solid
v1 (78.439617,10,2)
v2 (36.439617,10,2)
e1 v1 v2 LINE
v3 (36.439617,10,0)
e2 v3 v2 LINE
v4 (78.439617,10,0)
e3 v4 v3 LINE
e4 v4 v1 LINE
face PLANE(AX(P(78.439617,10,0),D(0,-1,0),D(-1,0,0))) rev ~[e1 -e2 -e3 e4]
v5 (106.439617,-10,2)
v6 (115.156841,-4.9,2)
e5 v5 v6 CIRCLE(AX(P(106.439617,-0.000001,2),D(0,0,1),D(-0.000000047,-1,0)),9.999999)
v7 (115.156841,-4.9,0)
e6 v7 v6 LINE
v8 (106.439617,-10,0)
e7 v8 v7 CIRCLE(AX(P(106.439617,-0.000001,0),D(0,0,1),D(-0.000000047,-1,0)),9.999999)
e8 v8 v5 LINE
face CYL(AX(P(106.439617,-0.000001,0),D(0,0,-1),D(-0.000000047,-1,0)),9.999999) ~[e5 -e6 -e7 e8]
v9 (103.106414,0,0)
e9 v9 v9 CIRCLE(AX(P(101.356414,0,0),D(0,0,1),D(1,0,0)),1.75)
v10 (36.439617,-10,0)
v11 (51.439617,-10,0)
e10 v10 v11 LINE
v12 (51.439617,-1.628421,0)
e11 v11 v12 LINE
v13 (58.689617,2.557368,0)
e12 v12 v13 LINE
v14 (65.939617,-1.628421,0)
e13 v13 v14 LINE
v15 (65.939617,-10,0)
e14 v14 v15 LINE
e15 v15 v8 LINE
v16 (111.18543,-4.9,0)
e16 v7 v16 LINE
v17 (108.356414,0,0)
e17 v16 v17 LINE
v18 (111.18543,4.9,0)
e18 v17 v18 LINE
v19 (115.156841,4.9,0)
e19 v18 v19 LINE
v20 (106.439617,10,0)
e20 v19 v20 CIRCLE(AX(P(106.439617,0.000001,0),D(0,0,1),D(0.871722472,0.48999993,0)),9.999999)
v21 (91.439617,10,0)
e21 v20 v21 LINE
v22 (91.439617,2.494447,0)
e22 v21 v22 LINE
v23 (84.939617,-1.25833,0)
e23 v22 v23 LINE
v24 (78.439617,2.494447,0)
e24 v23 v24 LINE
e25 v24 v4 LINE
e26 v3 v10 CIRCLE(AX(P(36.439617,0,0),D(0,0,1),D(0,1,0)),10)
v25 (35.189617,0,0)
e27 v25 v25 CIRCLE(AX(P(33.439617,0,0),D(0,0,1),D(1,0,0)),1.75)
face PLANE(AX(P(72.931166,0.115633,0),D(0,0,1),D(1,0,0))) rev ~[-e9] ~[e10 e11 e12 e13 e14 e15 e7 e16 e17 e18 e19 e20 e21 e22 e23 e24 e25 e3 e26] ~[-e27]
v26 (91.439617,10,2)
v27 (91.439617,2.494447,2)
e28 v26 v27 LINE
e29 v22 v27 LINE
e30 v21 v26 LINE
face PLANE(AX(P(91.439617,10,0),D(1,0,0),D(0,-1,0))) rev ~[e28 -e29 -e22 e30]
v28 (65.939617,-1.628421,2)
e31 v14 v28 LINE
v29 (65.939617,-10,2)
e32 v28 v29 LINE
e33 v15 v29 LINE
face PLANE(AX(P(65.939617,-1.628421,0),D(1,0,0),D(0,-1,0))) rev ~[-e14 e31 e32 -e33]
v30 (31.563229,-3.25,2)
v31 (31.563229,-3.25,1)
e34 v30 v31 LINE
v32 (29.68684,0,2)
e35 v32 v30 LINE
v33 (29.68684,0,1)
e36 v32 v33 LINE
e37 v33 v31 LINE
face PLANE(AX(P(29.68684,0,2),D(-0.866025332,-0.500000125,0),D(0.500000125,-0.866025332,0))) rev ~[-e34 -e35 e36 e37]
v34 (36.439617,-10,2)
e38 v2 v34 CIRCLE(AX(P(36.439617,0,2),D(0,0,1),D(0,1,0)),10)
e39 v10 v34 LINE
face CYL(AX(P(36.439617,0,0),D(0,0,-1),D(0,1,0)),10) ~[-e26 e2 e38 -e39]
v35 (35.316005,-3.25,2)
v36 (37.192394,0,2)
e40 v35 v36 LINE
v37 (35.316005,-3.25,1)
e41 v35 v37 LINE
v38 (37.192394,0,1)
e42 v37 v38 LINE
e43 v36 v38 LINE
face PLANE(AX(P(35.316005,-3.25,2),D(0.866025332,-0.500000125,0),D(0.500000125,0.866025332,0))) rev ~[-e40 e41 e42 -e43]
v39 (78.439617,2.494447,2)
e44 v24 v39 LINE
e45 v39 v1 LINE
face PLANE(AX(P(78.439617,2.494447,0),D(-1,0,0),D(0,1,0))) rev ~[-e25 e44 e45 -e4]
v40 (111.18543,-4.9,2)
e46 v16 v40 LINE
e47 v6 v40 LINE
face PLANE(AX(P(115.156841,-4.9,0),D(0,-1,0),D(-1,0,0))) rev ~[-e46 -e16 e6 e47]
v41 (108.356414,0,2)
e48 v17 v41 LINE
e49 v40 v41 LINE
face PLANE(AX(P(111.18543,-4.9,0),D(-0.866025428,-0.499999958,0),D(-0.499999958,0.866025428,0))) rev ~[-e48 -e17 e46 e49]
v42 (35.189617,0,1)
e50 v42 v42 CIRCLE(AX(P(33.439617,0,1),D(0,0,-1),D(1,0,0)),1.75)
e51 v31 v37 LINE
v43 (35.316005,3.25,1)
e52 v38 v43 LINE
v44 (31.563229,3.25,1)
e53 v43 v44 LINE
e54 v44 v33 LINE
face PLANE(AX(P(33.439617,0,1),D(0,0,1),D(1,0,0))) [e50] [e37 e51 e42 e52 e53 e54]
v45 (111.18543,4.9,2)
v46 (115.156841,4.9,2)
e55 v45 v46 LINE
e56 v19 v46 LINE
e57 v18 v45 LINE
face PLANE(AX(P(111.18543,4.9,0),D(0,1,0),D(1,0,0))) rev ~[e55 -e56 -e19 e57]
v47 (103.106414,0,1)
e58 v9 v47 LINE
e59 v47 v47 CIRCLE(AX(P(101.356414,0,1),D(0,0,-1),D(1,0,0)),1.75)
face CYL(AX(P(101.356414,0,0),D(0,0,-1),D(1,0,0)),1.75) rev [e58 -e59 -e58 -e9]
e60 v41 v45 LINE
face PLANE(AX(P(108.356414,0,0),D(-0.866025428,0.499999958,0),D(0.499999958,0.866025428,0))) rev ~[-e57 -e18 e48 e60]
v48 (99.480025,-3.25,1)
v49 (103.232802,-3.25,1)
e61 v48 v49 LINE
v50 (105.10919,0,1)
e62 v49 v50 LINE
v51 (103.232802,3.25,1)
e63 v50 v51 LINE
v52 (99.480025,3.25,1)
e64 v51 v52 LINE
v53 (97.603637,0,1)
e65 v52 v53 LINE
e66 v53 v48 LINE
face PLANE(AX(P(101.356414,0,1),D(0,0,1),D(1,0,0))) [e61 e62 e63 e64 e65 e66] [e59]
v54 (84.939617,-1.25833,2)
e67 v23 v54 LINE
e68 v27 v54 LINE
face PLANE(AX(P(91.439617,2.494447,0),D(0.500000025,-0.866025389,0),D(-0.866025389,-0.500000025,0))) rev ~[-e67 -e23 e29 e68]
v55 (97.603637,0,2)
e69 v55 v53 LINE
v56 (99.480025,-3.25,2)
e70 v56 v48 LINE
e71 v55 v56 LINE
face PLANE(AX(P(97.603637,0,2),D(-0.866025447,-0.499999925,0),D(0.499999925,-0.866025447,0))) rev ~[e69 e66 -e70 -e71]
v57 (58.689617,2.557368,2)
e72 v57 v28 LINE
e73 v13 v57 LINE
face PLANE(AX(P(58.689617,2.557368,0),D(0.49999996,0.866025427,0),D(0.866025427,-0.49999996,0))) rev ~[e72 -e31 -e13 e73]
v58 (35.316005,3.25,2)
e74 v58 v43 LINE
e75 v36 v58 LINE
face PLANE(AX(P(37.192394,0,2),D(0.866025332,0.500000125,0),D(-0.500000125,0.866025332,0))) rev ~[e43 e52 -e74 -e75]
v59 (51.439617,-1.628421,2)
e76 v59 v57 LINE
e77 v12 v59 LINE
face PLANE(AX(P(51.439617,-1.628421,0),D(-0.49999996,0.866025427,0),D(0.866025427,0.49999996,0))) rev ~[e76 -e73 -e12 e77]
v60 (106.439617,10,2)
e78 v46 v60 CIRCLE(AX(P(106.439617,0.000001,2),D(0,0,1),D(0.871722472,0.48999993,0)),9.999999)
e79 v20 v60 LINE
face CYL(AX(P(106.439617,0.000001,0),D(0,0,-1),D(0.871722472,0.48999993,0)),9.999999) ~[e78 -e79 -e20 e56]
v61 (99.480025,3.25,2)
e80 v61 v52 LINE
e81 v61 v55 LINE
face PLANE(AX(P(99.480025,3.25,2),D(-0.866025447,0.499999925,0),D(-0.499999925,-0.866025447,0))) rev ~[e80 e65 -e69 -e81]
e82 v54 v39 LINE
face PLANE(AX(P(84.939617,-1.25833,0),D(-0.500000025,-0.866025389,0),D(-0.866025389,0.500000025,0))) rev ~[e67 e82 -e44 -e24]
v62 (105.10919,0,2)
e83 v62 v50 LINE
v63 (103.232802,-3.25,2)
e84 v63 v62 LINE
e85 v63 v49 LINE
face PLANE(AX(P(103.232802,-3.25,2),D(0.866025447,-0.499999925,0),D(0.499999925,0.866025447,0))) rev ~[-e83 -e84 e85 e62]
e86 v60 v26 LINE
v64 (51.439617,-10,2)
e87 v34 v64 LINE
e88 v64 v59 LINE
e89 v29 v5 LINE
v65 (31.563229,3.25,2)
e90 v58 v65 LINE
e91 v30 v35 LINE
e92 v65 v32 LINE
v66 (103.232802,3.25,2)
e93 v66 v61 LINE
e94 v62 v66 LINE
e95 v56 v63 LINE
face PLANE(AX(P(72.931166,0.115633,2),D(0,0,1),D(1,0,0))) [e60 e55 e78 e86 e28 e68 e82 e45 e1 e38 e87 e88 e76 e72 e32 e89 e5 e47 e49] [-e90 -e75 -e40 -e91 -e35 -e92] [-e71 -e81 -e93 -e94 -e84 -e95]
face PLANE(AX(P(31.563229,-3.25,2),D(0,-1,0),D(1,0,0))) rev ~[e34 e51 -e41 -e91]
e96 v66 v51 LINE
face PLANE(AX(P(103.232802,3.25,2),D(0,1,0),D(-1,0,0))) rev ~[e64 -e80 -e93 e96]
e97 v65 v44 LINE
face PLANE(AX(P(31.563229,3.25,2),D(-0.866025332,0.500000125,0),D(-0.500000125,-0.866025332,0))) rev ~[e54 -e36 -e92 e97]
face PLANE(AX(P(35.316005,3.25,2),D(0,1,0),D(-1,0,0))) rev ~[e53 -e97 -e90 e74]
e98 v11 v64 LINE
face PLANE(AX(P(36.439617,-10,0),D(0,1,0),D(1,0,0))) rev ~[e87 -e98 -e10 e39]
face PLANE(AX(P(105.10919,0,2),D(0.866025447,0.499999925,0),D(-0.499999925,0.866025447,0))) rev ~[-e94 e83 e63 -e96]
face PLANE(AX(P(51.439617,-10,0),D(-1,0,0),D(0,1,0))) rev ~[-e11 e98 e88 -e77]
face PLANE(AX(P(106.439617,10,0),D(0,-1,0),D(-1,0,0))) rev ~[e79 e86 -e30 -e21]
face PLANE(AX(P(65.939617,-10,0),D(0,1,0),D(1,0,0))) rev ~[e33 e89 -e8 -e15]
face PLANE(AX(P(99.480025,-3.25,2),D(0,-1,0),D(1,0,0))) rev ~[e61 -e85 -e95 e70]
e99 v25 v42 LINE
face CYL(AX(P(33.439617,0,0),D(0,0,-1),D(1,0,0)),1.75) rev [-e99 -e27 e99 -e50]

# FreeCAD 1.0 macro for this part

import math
import FreeCAD as App
import Part
import Sketcher

V = App.Vector
Q = App.Units.Quantity

doc = App.newDocument("Part")
body = doc.addObject("PartDesign::Body", "Body")

sketch1 = body.newObject("Sketcher::SketchObject", "Sketch")
sketch1.AttachmentSupport = (doc.getObject("XY_Plane"), [""])
sketch1.MapMode = "FlatFace"
sketch1.addGeometry([
    Part.LineSegment(V(78.4, 10, 0), V(36.4, 10, 0)),
    Part.ArcOfCircle(Part.Circle(V(36.4, 0, 0), V(0, 0, 1), 10), math.radians(90), math.radians(270)),
    Part.LineSegment(V(36.4, -10, 0), V(51.4, -10, 0)),
    Part.LineSegment(V(51.4, -10, 0), V(51.4, -1.6, 0)),
    Part.LineSegment(V(51.4, -1.6, 0), V(58.7, 2.6, 0)),
    Part.LineSegment(V(58.7, 2.6, 0), V(65.9, -1.6, 0)),
    Part.LineSegment(V(65.9, -1.6, 0), V(65.9, -10, 0)),
    Part.LineSegment(V(65.9, -10, 0), V(106.4, -10, 0)),
    Part.ArcOfCircle(Part.Circle(V(106.4, 0, 0), V(0, 0, 1), 10), math.radians(-90), math.radians(-29)),
    Part.LineSegment(V(115.2, -4.9, 0), V(111.2, -4.9, 0)),
    Part.LineSegment(V(111.2, -4.9, 0), V(108.4, 0, 0)),
    Part.LineSegment(V(108.4, 0, 0), V(111.2, 4.9, 0)),
    Part.LineSegment(V(111.2, 4.9, 0), V(115.2, 4.9, 0)),
    Part.ArcOfCircle(Part.Circle(V(106.4, 0, 0), V(0, 0, 1), 10), math.radians(29), math.radians(90)),
    Part.LineSegment(V(106.4, 10, 0), V(91.4, 10, 0)),
    Part.LineSegment(V(91.4, 10, 0), V(91.4, 2.5, 0)),
    Part.LineSegment(V(91.4, 2.5, 0), V(84.9, -1.3, 0)),
    Part.LineSegment(V(84.9, -1.3, 0), V(78.4, 2.5, 0)),
    Part.LineSegment(V(78.4, 2.5, 0), V(78.4, 10, 0)),
    Part.Circle(V(33.4, 0, 0), V(0, 0, 1), 1.8),
    Part.Circle(V(101.4, 0, 0), V(0, 0, 1), 1.8),
], False)
sketch1.addConstraint([
    Sketcher.Constraint("Tangent", 0, 2, 1, 1),
    Sketcher.Constraint("Tangent", 1, 2, 2, 1),
    Sketcher.Constraint("Coincident", 2, 2, 3, 1),
    Sketcher.Constraint("Coincident", 3, 2, 4, 1),
    Sketcher.Constraint("Coincident", 4, 2, 5, 1),
    Sketcher.Constraint("Coincident", 5, 2, 6, 1),
    Sketcher.Constraint("Coincident", 6, 2, 7, 1),
    Sketcher.Constraint("Tangent", 7, 2, 8, 1),
    Sketcher.Constraint("Coincident", 8, 2, 9, 1),
    Sketcher.Constraint("Coincident", 9, 2, 10, 1),
    Sketcher.Constraint("Coincident", 10, 2, 11, 1),
    Sketcher.Constraint("Coincident", 11, 2, 12, 1),
    Sketcher.Constraint("Coincident", 12, 2, 13, 1),
    Sketcher.Constraint("Tangent", 13, 2, 14, 1),
    Sketcher.Constraint("Coincident", 14, 2, 15, 1),
    Sketcher.Constraint("Coincident", 15, 2, 16, 1),
    Sketcher.Constraint("Coincident", 16, 2, 17, 1),
    Sketcher.Constraint("Coincident", 17, 2, 18, 1),
    Sketcher.Constraint("Coincident", 18, 2, 0, 1),
    Sketcher.Constraint("Horizontal", 0),
    Sketcher.Constraint("Horizontal", 2),
    Sketcher.Constraint("Vertical", 3),
    Sketcher.Constraint("Vertical", 6),
    Sketcher.Constraint("Horizontal", 7),
    Sketcher.Constraint("Horizontal", 9),
    Sketcher.Constraint("Horizontal", 12),
    Sketcher.Constraint("Horizontal", 14),
    Sketcher.Constraint("Vertical", 15),
    Sketcher.Constraint("Vertical", 18),
    Sketcher.Constraint("Coincident", 13, 3, 8, 3),
    Sketcher.Constraint("Equal", 1, 8),
    Sketcher.Constraint("Equal", 8, 13),
    Sketcher.Constraint("Equal", 19, 20),
    Sketcher.Constraint("Symmetric", 9, 2, 11, 2, -1),
    Sketcher.Constraint("PointOnObject", 1, 3, -1),
    Sketcher.Constraint("PointOnObject", 8, 3, -1),
    Sketcher.Constraint("PointOnObject", 19, 3, -1),
    Sketcher.Constraint("PointOnObject", 20, 3, -1),
    Sketcher.Constraint("PointOnObject", 10, 2, -1),
    Sketcher.Constraint("Perpendicular", 4, 10),
    Sketcher.Constraint("Perpendicular", 5, 11),
    Sketcher.Constraint("Perpendicular", 10, 16),
    Sketcher.Constraint("Perpendicular", 11, 17),
    Sketcher.Constraint("Horizontal", 3, 2, 5, 2),
    Sketcher.Constraint("Horizontal", 15, 2, 17, 2),
    Sketcher.Constraint("Equal", 2, 14),
    Sketcher.Constraint("Radius", 1, Q("10 mm")),
    Sketcher.Constraint("Diameter", 19, Q("3.5 mm")),
    Sketcher.Constraint("DistanceX", 0, 2, 0, 1, Q("42 mm")),
    Sketcher.Constraint("DistanceX", 2, 1, 2, 2, Q("15 mm")),
    Sketcher.Constraint("Angle", 4, Q("29.999997 deg")),
    Sketcher.Constraint("DistanceX", 7, 1, 7, 2, Q("40.5 mm")),
    Sketcher.Constraint("DistanceX", 1, 3, 8, 3, Q("70 mm")),
    Sketcher.Constraint("DistanceX", 19, 3, 1, 3, Q("3 mm")),
    Sketcher.Constraint("DistanceX", 20, 3, 10, 2, Q("7 mm")),
    Sketcher.Constraint("DistanceY", 8, 2, -1, 1, Q("4.9 mm")),
    Sketcher.Constraint("DistanceX", 9, 2, 9, 1, Q("3.971411 mm")),
    Sketcher.Constraint("DistanceY", 3, 1, 3, 2, Q("8.371579 mm")),
    Sketcher.Constraint("DistanceY", 15, 2, 15, 1, Q("7.505553 mm")),
    Sketcher.Constraint("DistanceX", -1, 1, 8, 2, Q("115.156841 mm")),
])
pad1 = body.newObject("PartDesign::Pad", "Pad")
pad1.Profile = sketch1
pad1.Length = 2

sketch2 = body.newObject("Sketcher::SketchObject", "Sketch001")
sketch2.AttachmentSupport = (doc.getObject("XY_Plane"), [""])
sketch2.MapMode = "FlatFace"
sketch2.AttachmentOffset = App.Placement(V(0, 0, 2), App.Rotation())
sketch2.addGeometry([
    Part.LineSegment(V(31.6, -3.2, 0), V(35.3, -3.2, 0)),
    Part.LineSegment(V(35.3, -3.2, 0), V(37.2, 0, 0)),
    Part.LineSegment(V(37.2, 0, 0), V(35.3, 3.2, 0)),
    Part.LineSegment(V(35.3, 3.2, 0), V(31.6, 3.2, 0)),
    Part.LineSegment(V(31.6, 3.2, 0), V(29.7, 0, 0)),
    Part.LineSegment(V(29.7, 0, 0), V(31.6, -3.2, 0)),
    Part.LineSegment(V(99.5, -3.2, 0), V(103.2, -3.2, 0)),
    Part.LineSegment(V(103.2, -3.2, 0), V(105.1, 0, 0)),
    Part.LineSegment(V(105.1, 0, 0), V(103.2, 3.2, 0)),
    Part.LineSegment(V(103.2, 3.2, 0), V(99.5, 3.2, 0)),
    Part.LineSegment(V(99.5, 3.2, 0), V(97.6, 0, 0)),
    Part.LineSegment(V(97.6, 0, 0), V(99.5, -3.2, 0)),
], False)
sketch2.addConstraint([
    Sketcher.Constraint("Coincident", 0, 2, 1, 1),
    Sketcher.Constraint("Coincident", 1, 2, 2, 1),
    Sketcher.Constraint("Coincident", 2, 2, 3, 1),
    Sketcher.Constraint("Coincident", 3, 2, 4, 1),
    Sketcher.Constraint("Coincident", 4, 2, 5, 1),
    Sketcher.Constraint("Coincident", 5, 2, 0, 1),
    Sketcher.Constraint("Coincident", 6, 2, 7, 1),
    Sketcher.Constraint("Coincident", 7, 2, 8, 1),
    Sketcher.Constraint("Coincident", 8, 2, 9, 1),
    Sketcher.Constraint("Coincident", 9, 2, 10, 1),
    Sketcher.Constraint("Coincident", 10, 2, 11, 1),
    Sketcher.Constraint("Coincident", 11, 2, 6, 1),
    Sketcher.Constraint("Horizontal", 0),
    Sketcher.Constraint("Horizontal", 3),
    Sketcher.Constraint("Horizontal", 6),
    Sketcher.Constraint("Horizontal", 9),
    Sketcher.Constraint("Symmetric", 0, 2, 2, 2, -1),
    Sketcher.Constraint("Symmetric", 6, 2, 8, 2, -1),
    Sketcher.Constraint("PointOnObject", 1, 2, -1),
    Sketcher.Constraint("PointOnObject", 4, 2, -1),
    Sketcher.Constraint("PointOnObject", 7, 2, -1),
    Sketcher.Constraint("PointOnObject", 10, 2, -1),
    Sketcher.Constraint("Parallel", 1, 4),
    Sketcher.Constraint("Parallel", 2, 5),
    Sketcher.Constraint("Parallel", 4, 7),
    Sketcher.Constraint("Parallel", 7, 10),
    Sketcher.Constraint("Parallel", 8, 11),
    Sketcher.Constraint("Horizontal", 5, 2, 6, 2),
    Sketcher.Constraint("Equal", 3, 6),
    Sketcher.Constraint("Angle", 1, Q("59.999992 deg")),
    Sketcher.Constraint("DistanceY", 0, 2, 2, 2, Q("6.5 mm")),
    Sketcher.Constraint("DistanceX", 0, 1, 0, 2, Q("3.752776 mm")),
    Sketcher.Constraint("DistanceX", -1, 1, 3, 2, Q("31.563229 mm")),
    Sketcher.Constraint("DistanceX", -1, 1, 7, 2, Q("105.10919 mm")),
])
pocket1 = body.newObject("PartDesign::Pocket", "Pocket")
pocket1.Profile = sketch2
pocket1.Length = 1

doc.recompute()
